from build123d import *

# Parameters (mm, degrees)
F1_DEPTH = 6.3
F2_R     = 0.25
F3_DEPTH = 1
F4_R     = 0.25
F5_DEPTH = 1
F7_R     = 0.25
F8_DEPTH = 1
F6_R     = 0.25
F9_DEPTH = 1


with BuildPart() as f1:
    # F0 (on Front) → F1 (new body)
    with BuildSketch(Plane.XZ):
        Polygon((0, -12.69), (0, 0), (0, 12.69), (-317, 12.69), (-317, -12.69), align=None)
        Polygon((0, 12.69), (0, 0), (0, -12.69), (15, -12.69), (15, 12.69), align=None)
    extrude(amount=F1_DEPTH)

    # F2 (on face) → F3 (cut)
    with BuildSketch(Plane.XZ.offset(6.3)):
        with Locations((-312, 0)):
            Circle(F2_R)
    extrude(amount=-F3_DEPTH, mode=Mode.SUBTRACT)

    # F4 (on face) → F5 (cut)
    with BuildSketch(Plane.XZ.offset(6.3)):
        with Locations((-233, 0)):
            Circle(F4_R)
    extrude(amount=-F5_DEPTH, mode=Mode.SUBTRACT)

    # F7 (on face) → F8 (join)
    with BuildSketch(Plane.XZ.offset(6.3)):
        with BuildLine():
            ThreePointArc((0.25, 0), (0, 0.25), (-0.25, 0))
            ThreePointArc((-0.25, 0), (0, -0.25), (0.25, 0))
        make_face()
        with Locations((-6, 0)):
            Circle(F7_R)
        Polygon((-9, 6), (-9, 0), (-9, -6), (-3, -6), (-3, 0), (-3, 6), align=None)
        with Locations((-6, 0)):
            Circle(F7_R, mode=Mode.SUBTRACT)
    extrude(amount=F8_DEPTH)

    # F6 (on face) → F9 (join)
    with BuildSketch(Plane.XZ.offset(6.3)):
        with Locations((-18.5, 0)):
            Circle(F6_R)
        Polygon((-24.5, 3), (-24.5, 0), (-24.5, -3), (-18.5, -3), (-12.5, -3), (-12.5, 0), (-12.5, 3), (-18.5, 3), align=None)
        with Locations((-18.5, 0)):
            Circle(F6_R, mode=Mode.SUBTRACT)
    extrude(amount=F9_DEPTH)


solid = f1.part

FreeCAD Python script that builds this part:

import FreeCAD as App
import Part
import Sketcher
Q = App.Units.Quantity

doc = App.newDocument("Part")
body = doc.addObject("PartDesign::Body", "Body")

sketch1 = body.newObject("Sketcher::SketchObject", "Sketch")
sketch1.AttachmentSupport = (doc.getObject("XZ_Plane"), [""])
sketch1.MapMode = "FlatFace"
sketch1.addGeometry([
    Part.LineSegment(App.Vector(-317, 13, 0), App.Vector(-317, -13, 0)),
    Part.LineSegment(App.Vector(-317, -13, 0), App.Vector(15, -13, 0)),
    Part.LineSegment(App.Vector(15, -13, 0), App.Vector(15, 13, 0)),
    Part.LineSegment(App.Vector(15, 13, 0), App.Vector(-317, 13, 0)),
], False)
sketch1.addConstraint([
    Sketcher.Constraint("Coincident", 0, 2, 1, 1),
    Sketcher.Constraint("Coincident", 1, 2, 2, 1),
    Sketcher.Constraint("Coincident", 2, 2, 3, 1),
    Sketcher.Constraint("Coincident", 3, 2, 0, 1),
    Sketcher.Constraint("Vertical", 0),
    Sketcher.Constraint("Horizontal", 1),
    Sketcher.Constraint("Vertical", 2),
    Sketcher.Constraint("Horizontal", 3),
    Sketcher.Constraint("DistanceX", 1, 1, 1, 2, Q("332 mm")),
    Sketcher.Constraint("DistanceX", 0, 2, -1, 1, Q("317 mm")),
    Sketcher.Constraint("DistanceY", 0, 2, 0, 1, Q("25.38 mm")),
    Sketcher.Constraint("DistanceY", 0, 2, -1, 1, Q("12.69 mm")),
])
pad1 = body.newObject("PartDesign::Pad", "Pad")
pad1.Profile = sketch1
pad1.Length = 6.3

sketch2 = body.newObject("Sketcher::SketchObject", "Sketch001")
sketch2.AttachmentSupport = (doc.getObject("XZ_Plane"), [""])
sketch2.MapMode = "FlatFace"
sketch2.AttachmentOffset = App.Placement(App.Vector(0, 0, 6.3), App.Rotation())
sketch2.addGeometry(Part.Circle(App.Vector(-312, 0, 0), App.Vector(0, 0, 1), 0.25), False)
sketch2.addConstraint([
    Sketcher.Constraint("PointOnObject", 0, 3, -1),
    Sketcher.Constraint("Diameter", 0, Q("0.5 mm")),
    Sketcher.Constraint("DistanceX", 0, 3, -1, 1, Q("312 mm")),
])
pocket1 = body.newObject("PartDesign::Pocket", "Pocket")
pocket1.Profile = sketch2
pocket1.Length = 1

sketch3 = body.newObject("Sketcher::SketchObject", "Sketch002")
sketch3.AttachmentSupport = (doc.getObject("XZ_Plane"), [""])
sketch3.MapMode = "FlatFace"
sketch3.AttachmentOffset = App.Placement(App.Vector(0, 0, 6.3), App.Rotation())
sketch3.addGeometry(Part.Circle(App.Vector(-233, 0, 0), App.Vector(0, 0, 1), 0.25), False)
sketch3.addConstraint([
    Sketcher.Constraint("PointOnObject", 0, 3, -1),
    Sketcher.Constraint("Diameter", 0, Q("0.5 mm")),
    Sketcher.Constraint("DistanceX", 0, 3, -1, 1, Q("233 mm")),
])
pocket2 = body.newObject("PartDesign::Pocket", "Pocket001")
pocket2.Profile = sketch3
pocket2.Length = 1

sketch4 = body.newObject("Sketcher::SketchObject", "Sketch003")
sketch4.AttachmentSupport = (doc.getObject("XZ_Plane"), [""])
sketch4.MapMode = "FlatFace"
sketch4.AttachmentOffset = App.Placement(App.Vector(0, 0, 6.3), App.Rotation())
sketch4.addGeometry([
    Part.Circle(App.Vector(0, 0, 0), App.Vector(0, 0, 1), 0.25),
    Part.LineSegment(App.Vector(-9, 6, 0), App.Vector(-9, -6, 0)),
    Part.LineSegment(App.Vector(-9, -6, 0), App.Vector(-3, -6, 0)),
    Part.LineSegment(App.Vector(-3, -6, 0), App.Vector(-3, 6, 0)),
    Part.LineSegment(App.Vector(-3, 6, 0), App.Vector(-9, 6, 0)),
    Part.Circle(App.Vector(-6, 0, 0), App.Vector(0, 0, 1), 0.25),
], False)
sketch4.addConstraint([
    Sketcher.Constraint("Coincident", 1, 2, 2, 1),
    Sketcher.Constraint("Coincident", 2, 2, 3, 1),
    Sketcher.Constraint("Coincident", 3, 2, 4, 1),
    Sketcher.Constraint("Coincident", 4, 2, 1, 1),
    Sketcher.Constraint("Vertical", 1),
    Sketcher.Constraint("Horizontal", 2),
    Sketcher.Constraint("Vertical", 3),
    Sketcher.Constraint("Horizontal", 4),
    Sketcher.Constraint("Coincident", 0, 3, -1, 1),
    Sketcher.Constraint("Equal", 0, 5),
    Sketcher.Constraint("PointOnObject", 5, 3, -1),
    Sketcher.Constraint("Diameter", 0, Q("0.5 mm")),
    Sketcher.Constraint("DistanceX", 2, 1, 2, 2, Q("6 mm")),
    Sketcher.Constraint("DistanceY", 1, 2, 1, 1, Q("12 mm")),
    Sketcher.Constraint("DistanceX", 5, 3, -1, 1, Q("6 mm")),
    Sketcher.Constraint("DistanceX", 1, 2, -1, 1, Q("9 mm")),
    Sketcher.Constraint("DistanceY", 1, 2, -1, 1, Q("6 mm")),
])
pad2 = body.newObject("PartDesign::Pad", "Pad001")
pad2.Profile = sketch4
pad2.Length = 1

sketch5 = body.newObject("Sketcher::SketchObject", "Sketch004")
sketch5.AttachmentSupport = (doc.getObject("XZ_Plane"), [""])
sketch5.MapMode = "FlatFace"
sketch5.AttachmentOffset = App.Placement(App.Vector(0, 0, 6.3), App.Rotation())
sketch5.addGeometry([
    Part.LineSegment(App.Vector(-24.5, 3, 0), App.Vector(-24.5, -3, 0)),
    Part.LineSegment(App.Vector(-24.5, -3, 0), App.Vector(-12.5, -3, 0)),
    Part.LineSegment(App.Vector(-12.5, -3, 0), App.Vector(-12.5, 3, 0)),
    Part.LineSegment(App.Vector(-12.5, 3, 0), App.Vector(-24.5, 3, 0)),
    Part.Circle(App.Vector(-18.5, 0, 0), App.Vector(0, 0, 1), 0.25),
], False)
sketch5.addConstraint([
    Sketcher.Constraint("Coincident", 0, 2, 1, 1),
    Sketcher.Constraint("Coincident", 1, 2, 2, 1),
    Sketcher.Constraint("Coincident", 2, 2, 3, 1),
    Sketcher.Constraint("Coincident", 3, 2, 0, 1),
    Sketcher.Constraint("Vertical", 0),
    Sketcher.Constraint("Horizontal", 1),
    Sketcher.Constraint("Vertical", 2),
    Sketcher.Constraint("Horizontal", 3),
    Sketcher.Constraint("PointOnObject", 4, 3, -1),
    Sketcher.Constraint("Diameter", 4, Q("0.5 mm")),
    Sketcher.Constraint("DistanceX", 1, 1, 1, 2, Q("12 mm")),
    Sketcher.Constraint("DistanceY", 0, 2, 0, 1, Q("6 mm")),
    Sketcher.Constraint("DistanceY", 0, 2, -1, 1, Q("3 mm")),
    Sketcher.Constraint("DistanceX", 0, 2, 4, 3, Q("6 mm")),
    Sketcher.Constraint("DistanceX", 4, 3, -1, 1, Q("18.5 mm")),
])
pad3 = body.newObject("PartDesign::Pad", "Pad002")
pad3.Profile = sketch5
pad3.Length = 1

doc.recompute()
